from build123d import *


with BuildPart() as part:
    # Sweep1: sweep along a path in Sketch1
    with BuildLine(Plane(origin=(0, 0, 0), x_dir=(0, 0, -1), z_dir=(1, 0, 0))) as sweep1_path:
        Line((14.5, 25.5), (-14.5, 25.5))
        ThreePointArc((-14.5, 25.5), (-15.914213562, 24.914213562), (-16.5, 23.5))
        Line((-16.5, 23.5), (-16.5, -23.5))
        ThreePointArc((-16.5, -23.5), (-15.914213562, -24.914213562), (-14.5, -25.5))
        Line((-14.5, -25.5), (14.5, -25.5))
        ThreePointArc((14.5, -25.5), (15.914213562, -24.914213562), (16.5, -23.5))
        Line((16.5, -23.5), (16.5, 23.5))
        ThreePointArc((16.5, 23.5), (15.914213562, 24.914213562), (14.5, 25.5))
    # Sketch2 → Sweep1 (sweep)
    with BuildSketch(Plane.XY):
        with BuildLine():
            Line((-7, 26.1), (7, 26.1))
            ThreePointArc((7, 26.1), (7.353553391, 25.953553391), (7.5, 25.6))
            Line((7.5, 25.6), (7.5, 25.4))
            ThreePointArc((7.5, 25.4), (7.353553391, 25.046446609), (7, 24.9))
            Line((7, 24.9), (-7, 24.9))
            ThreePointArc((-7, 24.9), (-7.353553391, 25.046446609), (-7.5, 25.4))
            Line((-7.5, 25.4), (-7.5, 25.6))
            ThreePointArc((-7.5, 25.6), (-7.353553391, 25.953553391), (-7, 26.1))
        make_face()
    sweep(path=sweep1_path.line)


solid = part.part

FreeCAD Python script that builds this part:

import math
import FreeCAD as App
import Part
import Sketcher
from FreeCAD import Vector
Q = App.Units.Quantity

doc = App.newDocument("Part")
params = doc.addObject("Spreadsheet::Sheet", "Params")
for row, (alias, value) in enumerate([
    ("sketch1_radius", "0.5 mm"),
    ("sketch1_width", "14 mm"),
    ("sketch1_height", "0.2 mm"),
    ("sketch2_radius", "2 mm"),
    ("sketch2_width", "47 mm"),
    ("sketch2_height", "29 mm"),
], start=1):
    params.set(f"A{row}", alias)
    params.set(f"B{row}", "=" + value)
    params.setAlias(f"B{row}", alias)

body = doc.addObject("PartDesign::Body", "Body")

# Sketch on XY plane
sketch1 = body.newObject("Sketcher::SketchObject", "Sketch")
sketch1.AttachmentSupport = (doc.getObject("XY_Plane"), [""])
sketch1.MapMode = "FlatFace"
sketch1.addGeometry([
    Part.LineSegment(Vector(7, 26.1, 0), Vector(-7, 26.1, 0)),  # 0
    Part.ArcOfCircle(Part.Circle(Vector(-7, 25.6, 0), Vector(0, 0, 1), 0.5), math.radians(90), math.radians(180)),  # 1
    Part.LineSegment(Vector(-7.5, 25.6, 0), Vector(-7.5, 25.4, 0)),  # 2
    Part.ArcOfCircle(Part.Circle(Vector(-7, 25.4, 0), Vector(0, 0, 1), 0.5), math.radians(180), math.radians(270)),  # 3
    Part.LineSegment(Vector(-7, 24.9, 0), Vector(7, 24.9, 0)),  # 4
    Part.ArcOfCircle(Part.Circle(Vector(7, 25.4, 0), Vector(0, 0, 1), 0.5), math.radians(-90), math.radians(0)),  # 5
    Part.LineSegment(Vector(7.5, 25.4, 0), Vector(7.5, 25.6, 0)),  # 6
    Part.ArcOfCircle(Part.Circle(Vector(7, 25.6, 0), Vector(0, 0, 1), 0.5), math.radians(0), math.radians(90)),  # 7
], False)
sketch1.addConstraint([
    Sketcher.Constraint("Tangent", 0, 2, 1, 1),
    Sketcher.Constraint("Tangent", 1, 2, 2, 1),
    Sketcher.Constraint("Tangent", 2, 2, 3, 1),
    Sketcher.Constraint("Tangent", 3, 2, 4, 1),
    Sketcher.Constraint("Tangent", 4, 2, 5, 1),
    Sketcher.Constraint("Tangent", 5, 2, 6, 1),
    Sketcher.Constraint("Tangent", 6, 2, 7, 1),
    Sketcher.Constraint("Tangent", 7, 2, 0, 1),
    Sketcher.Constraint("Horizontal", 0),
    Sketcher.Constraint("Vertical", 2),
    Sketcher.Constraint("Horizontal", 4),
    Sketcher.Constraint("Vertical", 6),
    Sketcher.Constraint("Equal", 1, 3),
    Sketcher.Constraint("Equal", 3, 5),
    Sketcher.Constraint("Equal", 5, 7),
    Sketcher.Constraint("Radius", 1, Q("0.5 mm")),
    Sketcher.Constraint("DistanceX", 0, 2, 0, 1, Q("14 mm")),
    Sketcher.Constraint("DistanceY", 2, 2, 2, 1, Q("0.2 mm")),
    Sketcher.Constraint("DistanceX", 1, 3, -1, 1, Q("7 mm")),
    Sketcher.Constraint("DistanceY", -1, 1, 1, 3, Q("25.6 mm")),
])
sketch1.setExpression("Constraints[15]", "Params.sketch1_radius")
sketch1.setExpression("Constraints[16]", "Params.sketch1_width")
sketch1.setExpression("Constraints[17]", "Params.sketch1_height")

# Sketch on YZ plane
sketch2 = body.newObject("Sketcher::SketchObject", "Sketch001")
sketch2.AttachmentSupport = (doc.getObject("YZ_Plane"), [""])
sketch2.MapMode = "FlatFace"
sketch2.addGeometry([
    Part.LineSegment(Vector(25.5, -14.5, 0), Vector(25.5, 14.5, 0)),  # 0
    Part.ArcOfCircle(Part.Circle(Vector(23.5, 14.5, 0), Vector(0, 0, 1), 2), math.radians(0), math.radians(90)),  # 1
    Part.LineSegment(Vector(23.5, 16.5, 0), Vector(-23.5, 16.5, 0)),  # 2
    Part.ArcOfCircle(Part.Circle(Vector(-23.5, 14.5, 0), Vector(0, 0, 1), 2), math.radians(90), math.radians(180)),  # 3
    Part.LineSegment(Vector(-25.5, 14.5, 0), Vector(-25.5, -14.5, 0)),  # 4
    Part.ArcOfCircle(Part.Circle(Vector(-23.5, -14.5, 0), Vector(0, 0, 1), 2), math.radians(-180), math.radians(-90)),  # 5
    Part.LineSegment(Vector(-23.5, -16.5, 0), Vector(23.5, -16.5, 0)),  # 6
    Part.ArcOfCircle(Part.Circle(Vector(23.5, -14.5, 0), Vector(0, 0, 1), 2), math.radians(-90), math.radians(0)),  # 7
], False)
sketch2.addConstraint([
    Sketcher.Constraint("Tangent", 0, 2, 1, 1),
    Sketcher.Constraint("Tangent", 1, 2, 2, 1),
    Sketcher.Constraint("Tangent", 2, 2, 3, 1),
    Sketcher.Constraint("Tangent", 3, 2, 4, 1),
    Sketcher.Constraint("Tangent", 4, 2, 5, 1),
    Sketcher.Constraint("Tangent", 5, 2, 6, 1),
    Sketcher.Constraint("Tangent", 6, 2, 7, 1),
    Sketcher.Constraint("Tangent", 7, 2, 0, 1),
    Sketcher.Constraint("Vertical", 0),
    Sketcher.Constraint("Horizontal", 2),
    Sketcher.Constraint("Vertical", 4),
    Sketcher.Constraint("Horizontal", 6),
    Sketcher.Constraint("Equal", 1, 3),
    Sketcher.Constraint("Equal", 3, 5),
    Sketcher.Constraint("Equal", 5, 7),
    Sketcher.Constraint("Symmetric", 1, 3, 5, 3, -1, 1),
    Sketcher.Constraint("Radius", 1, Q("2 mm")),
    Sketcher.Constraint("DistanceX", 2, 2, 2, 1, Q("47 mm")),
    Sketcher.Constraint("DistanceY", 0, 1, 0, 2, Q("29 mm")),
])
sketch2.setExpression("Constraints[16]", "Params.sketch2_radius")
sketch2.setExpression("Constraints[17]", "Params.sketch2_width")
sketch2.setExpression("Constraints[18]", "Params.sketch2_height")
doc.recompute()

additivepipe = body.newObject("PartDesign::AdditivePipe", "AdditivePipe")
additivepipe.Profile = sketch1
additivepipe.Spine = (sketch2, ["Edge1", "Edge2", "Edge3", "Edge4", "Edge5", "Edge6", "Edge7", "Edge8"])

doc.recompute()
